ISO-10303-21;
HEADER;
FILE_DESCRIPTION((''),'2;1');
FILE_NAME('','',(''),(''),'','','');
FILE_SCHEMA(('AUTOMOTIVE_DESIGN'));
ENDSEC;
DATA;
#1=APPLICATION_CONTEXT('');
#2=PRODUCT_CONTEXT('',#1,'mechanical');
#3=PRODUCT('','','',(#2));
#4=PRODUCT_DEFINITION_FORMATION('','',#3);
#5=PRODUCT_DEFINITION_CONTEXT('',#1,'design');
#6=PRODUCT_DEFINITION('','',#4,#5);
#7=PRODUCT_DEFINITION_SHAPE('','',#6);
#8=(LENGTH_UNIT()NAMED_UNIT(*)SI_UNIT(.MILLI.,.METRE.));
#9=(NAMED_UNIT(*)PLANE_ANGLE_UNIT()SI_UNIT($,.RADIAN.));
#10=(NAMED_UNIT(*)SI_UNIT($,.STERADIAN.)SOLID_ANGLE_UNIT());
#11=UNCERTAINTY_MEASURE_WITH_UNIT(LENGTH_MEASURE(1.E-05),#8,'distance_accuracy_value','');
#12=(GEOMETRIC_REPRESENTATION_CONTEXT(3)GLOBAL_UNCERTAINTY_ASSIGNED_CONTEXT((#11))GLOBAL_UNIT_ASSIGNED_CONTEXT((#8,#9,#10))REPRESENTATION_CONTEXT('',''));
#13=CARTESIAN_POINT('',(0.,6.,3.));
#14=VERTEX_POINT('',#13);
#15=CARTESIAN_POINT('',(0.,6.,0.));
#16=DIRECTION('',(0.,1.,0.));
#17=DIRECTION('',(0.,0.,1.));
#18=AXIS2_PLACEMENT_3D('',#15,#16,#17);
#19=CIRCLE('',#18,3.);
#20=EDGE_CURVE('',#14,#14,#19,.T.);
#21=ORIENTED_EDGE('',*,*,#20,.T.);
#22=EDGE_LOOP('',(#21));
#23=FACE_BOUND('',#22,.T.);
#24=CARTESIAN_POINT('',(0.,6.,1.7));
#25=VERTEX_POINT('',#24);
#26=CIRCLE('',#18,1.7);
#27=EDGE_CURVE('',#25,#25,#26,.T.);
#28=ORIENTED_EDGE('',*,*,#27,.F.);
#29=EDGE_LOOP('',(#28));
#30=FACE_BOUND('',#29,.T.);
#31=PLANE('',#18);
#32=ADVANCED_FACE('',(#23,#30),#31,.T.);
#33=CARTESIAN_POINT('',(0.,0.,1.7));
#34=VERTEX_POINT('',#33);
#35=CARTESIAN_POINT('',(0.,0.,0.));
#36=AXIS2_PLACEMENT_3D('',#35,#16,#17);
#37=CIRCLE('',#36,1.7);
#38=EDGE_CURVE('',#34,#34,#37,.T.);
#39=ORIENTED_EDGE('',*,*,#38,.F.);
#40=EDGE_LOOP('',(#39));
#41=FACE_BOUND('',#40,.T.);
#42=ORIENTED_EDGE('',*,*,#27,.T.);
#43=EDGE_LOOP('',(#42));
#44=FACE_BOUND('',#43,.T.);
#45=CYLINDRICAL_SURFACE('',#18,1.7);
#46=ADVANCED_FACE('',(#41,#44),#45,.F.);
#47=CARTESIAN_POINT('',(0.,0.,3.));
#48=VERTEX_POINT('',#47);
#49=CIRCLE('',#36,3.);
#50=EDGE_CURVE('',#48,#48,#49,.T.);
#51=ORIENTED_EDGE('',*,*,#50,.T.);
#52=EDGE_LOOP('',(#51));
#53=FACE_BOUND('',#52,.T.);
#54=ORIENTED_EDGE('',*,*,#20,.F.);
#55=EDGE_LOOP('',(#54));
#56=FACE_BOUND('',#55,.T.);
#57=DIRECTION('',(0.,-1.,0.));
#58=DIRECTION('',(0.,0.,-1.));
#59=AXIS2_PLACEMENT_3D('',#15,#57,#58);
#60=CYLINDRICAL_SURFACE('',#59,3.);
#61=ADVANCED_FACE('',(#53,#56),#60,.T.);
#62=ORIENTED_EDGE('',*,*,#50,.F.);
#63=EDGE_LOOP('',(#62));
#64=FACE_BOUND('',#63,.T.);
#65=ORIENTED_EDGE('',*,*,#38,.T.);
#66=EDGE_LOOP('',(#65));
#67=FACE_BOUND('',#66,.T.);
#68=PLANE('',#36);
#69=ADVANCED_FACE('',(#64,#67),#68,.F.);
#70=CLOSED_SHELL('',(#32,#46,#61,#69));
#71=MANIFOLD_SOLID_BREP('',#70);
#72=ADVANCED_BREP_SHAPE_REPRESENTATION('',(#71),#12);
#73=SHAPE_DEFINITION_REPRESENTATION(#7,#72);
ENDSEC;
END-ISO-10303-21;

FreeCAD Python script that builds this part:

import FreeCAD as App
import Part
import Sketcher
from FreeCAD import Vector

doc = App.newDocument("Part")
body = doc.addObject("PartDesign::Body", "Body")

sketch1 = doc.addObject("Sketcher::SketchObject", "Sketch")
body.addObject(sketch1)
sketch1.AttachmentSupport = (doc.XZ_Plane, [""])
sketch1.MapMode = "FlatFace"
sketch1.addGeometry(Part.Circle(Vector(0, 0, 0), Vector(0, 0, 1), 3), False)
sketch1.addConstraint([
    Sketcher.Constraint("Coincident", 0, 3, -1, 1),
    Sketcher.Constraint("Diameter", 0, 6.0),
])
pad1 = doc.addObject("PartDesign::Pad", "Pad")
body.addObject(pad1)
pad1.Profile = sketch1
pad1.Length = 6
pad1.Reversed = True

sketch2 = doc.addObject("Sketcher::SketchObject", "Sketch001")
body.addObject(sketch2)
sketch2.AttachmentSupport = (doc.XZ_Plane, [""])
sketch2.MapMode = "FlatFace"
sketch2.AttachmentOffset = App.Placement(Vector(0, 0, -6), App.Rotation())
sketch2.addGeometry(Part.Circle(Vector(0, 0, 0), Vector(0, 0, 1), 1.7), False)
sketch2.addConstraint([
    Sketcher.Constraint("Coincident", 0, 3, -1, 1),
    Sketcher.Constraint("Diameter", 0, 3.4),
])
doc.recompute()
hole = doc.addObject("PartDesign::Hole", "Hole")
body.addObject(hole)
hole.Profile = sketch2
hole.ThreadType = "None"
hole.Diameter = 3.4
hole.DepthType = "ThroughAll"
hole.Reversed = True

doc.recompute()
